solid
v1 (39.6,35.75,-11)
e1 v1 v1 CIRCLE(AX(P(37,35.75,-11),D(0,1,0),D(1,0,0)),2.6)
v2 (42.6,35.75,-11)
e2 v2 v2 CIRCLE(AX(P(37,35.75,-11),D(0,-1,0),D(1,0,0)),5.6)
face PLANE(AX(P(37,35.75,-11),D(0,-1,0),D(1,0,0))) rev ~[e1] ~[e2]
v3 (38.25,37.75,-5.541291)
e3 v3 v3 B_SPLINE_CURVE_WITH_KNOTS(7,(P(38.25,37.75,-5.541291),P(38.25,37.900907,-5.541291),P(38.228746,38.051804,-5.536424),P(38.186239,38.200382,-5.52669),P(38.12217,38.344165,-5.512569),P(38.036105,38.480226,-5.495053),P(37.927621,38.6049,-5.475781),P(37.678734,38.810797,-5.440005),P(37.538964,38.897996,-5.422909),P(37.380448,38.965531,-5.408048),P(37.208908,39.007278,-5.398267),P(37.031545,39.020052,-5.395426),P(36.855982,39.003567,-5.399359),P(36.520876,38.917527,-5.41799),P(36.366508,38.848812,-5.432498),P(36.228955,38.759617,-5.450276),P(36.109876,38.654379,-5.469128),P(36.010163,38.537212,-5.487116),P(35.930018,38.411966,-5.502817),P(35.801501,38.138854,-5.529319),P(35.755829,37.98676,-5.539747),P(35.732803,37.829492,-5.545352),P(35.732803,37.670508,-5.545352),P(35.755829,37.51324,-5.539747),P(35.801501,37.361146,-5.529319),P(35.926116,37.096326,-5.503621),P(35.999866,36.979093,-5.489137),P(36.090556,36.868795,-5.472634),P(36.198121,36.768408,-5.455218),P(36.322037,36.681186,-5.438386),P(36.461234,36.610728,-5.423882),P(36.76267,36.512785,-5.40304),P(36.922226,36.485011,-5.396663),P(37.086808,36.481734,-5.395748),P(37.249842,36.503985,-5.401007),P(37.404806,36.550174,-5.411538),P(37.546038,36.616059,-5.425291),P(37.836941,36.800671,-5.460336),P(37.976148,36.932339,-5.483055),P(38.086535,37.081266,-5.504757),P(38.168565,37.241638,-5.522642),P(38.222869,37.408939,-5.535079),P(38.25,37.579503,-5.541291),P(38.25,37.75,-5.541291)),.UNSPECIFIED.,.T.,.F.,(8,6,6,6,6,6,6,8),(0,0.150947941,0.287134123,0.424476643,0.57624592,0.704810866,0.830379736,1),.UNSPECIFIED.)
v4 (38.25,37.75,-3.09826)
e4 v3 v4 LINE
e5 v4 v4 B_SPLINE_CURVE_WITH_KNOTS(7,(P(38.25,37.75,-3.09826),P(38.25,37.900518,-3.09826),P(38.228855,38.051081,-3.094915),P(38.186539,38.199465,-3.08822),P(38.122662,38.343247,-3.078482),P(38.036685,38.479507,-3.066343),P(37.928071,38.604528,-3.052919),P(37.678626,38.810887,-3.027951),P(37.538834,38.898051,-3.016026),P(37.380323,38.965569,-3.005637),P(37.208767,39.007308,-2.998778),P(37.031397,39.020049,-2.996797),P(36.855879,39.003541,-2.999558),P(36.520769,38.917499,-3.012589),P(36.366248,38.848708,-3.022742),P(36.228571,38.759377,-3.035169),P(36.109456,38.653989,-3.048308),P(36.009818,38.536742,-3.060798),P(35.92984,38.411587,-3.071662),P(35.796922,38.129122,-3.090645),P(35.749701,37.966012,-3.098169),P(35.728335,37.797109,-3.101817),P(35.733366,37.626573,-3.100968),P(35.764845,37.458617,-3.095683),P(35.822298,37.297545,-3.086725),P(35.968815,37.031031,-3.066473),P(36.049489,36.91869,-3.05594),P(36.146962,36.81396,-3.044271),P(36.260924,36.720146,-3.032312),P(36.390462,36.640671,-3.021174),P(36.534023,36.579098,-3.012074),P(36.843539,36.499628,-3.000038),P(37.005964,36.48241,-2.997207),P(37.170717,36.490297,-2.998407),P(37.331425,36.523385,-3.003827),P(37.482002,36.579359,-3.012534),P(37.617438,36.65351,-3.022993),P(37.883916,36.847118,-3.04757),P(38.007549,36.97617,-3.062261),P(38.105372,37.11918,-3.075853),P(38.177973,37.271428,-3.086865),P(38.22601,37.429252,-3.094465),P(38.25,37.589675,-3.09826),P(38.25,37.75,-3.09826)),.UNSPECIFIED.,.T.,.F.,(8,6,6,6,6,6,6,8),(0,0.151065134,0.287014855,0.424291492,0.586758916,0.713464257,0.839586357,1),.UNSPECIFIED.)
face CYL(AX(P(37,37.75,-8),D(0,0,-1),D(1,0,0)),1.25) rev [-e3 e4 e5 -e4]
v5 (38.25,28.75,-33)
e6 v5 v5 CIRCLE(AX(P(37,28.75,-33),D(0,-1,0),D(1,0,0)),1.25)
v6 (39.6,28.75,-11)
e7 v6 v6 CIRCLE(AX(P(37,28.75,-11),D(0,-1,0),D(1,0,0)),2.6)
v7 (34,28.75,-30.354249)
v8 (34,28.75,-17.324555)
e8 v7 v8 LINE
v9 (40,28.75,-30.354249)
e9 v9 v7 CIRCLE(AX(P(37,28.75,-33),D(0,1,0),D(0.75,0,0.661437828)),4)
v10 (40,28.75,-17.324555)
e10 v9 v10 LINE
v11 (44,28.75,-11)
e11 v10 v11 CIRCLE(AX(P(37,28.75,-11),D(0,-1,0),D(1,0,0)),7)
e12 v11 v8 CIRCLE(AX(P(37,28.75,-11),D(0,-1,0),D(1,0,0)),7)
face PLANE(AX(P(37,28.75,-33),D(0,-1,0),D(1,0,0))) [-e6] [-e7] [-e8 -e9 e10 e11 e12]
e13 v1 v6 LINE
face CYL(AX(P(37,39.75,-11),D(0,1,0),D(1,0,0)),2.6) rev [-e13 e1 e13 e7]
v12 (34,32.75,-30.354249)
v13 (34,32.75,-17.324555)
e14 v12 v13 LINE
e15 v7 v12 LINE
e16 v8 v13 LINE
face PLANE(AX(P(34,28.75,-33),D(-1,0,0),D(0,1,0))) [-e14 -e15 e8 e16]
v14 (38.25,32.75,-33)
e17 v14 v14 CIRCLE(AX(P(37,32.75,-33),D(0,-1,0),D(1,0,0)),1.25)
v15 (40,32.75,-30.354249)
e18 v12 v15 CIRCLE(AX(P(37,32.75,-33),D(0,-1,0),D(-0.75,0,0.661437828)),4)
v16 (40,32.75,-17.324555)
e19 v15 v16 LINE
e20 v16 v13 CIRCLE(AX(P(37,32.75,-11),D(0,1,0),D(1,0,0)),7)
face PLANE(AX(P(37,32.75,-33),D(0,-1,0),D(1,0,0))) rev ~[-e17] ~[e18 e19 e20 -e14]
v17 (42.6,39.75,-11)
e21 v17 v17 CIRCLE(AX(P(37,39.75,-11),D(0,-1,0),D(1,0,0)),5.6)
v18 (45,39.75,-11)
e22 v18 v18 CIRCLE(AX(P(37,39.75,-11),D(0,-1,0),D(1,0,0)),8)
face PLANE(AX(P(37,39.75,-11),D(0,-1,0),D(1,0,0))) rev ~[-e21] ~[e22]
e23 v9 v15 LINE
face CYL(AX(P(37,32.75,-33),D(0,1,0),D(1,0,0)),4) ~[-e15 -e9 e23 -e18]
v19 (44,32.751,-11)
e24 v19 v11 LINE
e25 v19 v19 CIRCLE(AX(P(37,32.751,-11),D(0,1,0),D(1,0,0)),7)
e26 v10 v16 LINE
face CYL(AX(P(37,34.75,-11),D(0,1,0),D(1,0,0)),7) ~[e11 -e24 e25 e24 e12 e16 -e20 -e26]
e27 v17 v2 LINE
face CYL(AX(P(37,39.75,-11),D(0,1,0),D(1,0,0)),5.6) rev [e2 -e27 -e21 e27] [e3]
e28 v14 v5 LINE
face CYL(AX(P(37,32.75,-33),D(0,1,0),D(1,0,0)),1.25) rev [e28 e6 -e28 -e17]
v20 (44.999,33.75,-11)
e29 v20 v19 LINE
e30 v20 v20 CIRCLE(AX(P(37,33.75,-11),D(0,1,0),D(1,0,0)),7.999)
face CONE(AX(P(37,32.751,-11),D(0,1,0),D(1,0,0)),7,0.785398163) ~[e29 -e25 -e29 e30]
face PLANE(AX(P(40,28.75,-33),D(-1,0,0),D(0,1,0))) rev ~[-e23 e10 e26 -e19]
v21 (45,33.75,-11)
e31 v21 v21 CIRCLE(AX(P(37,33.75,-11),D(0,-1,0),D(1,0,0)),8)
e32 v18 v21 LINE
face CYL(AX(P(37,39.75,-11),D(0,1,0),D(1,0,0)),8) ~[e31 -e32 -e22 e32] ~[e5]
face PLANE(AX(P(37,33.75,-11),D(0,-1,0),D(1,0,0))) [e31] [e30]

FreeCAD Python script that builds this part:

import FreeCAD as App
import Part
import Sketcher
from FreeCAD import Vector


def edges_at(feature, points):
    """Names of the edges that pass closest to the given points."""
    edges = feature.Shape.Edges
    near = lambda p: min(range(len(edges)), key=lambda i: edges[i].distToShape(Part.Vertex(*p))[0])
    return sorted({f"Edge{near(p) + 1}" for p in points})

doc = App.newDocument("Part")
body = doc.addObject("PartDesign::Body", "Body")

# Sketch on XY plane
sketch1 = body.newObject("Sketcher::SketchObject", "Sketch")
sketch1.AttachmentSupport = (doc.getObject("XY_Plane"), [""])
sketch1.MapMode = "FlatFace"
sketch1.addGeometry(Part.Circle(Vector(0, 0, 0), Vector(0, 0, 1), 1.25), False)
sketch1.addConstraint(Sketcher.Constraint("Coincident", 0, 3, -1, 1))
sketch1.addConstraint(Sketcher.Constraint("Diameter", 0, 2.5))
pad1 = body.newObject("PartDesign::Pad", "Pad")
pad1.Profile = sketch1
pad1.Length = 4
body2 = doc.addObject("PartDesign::Body", "Body001")
doc.recompute()

body.Placement = App.Placement(Vector(0, 0, 0), App.Rotation(Vector(1, 0, 0), 90))
boolean = body2.newObject("PartDesign::Boolean", "Boolean")
boolean.Type = "Fuse"
boolean.addObjects([body])
body3 = doc.addObject("PartDesign::Body", "Body002")
doc.recompute()

body2.Placement = App.Placement(Vector(37, 32.75, -33), App.Rotation(Vector(0, 0, 1), 0))
boolean2 = body3.newObject("PartDesign::Boolean", "Boolean001")
boolean2.Type = "Fuse"
boolean2.addObjects([body2])
body4 = doc.addObject("PartDesign::Body", "Body003")

# Sketch on XY plane
sketch2 = body4.newObject("Sketcher::SketchObject", "Sketch001")
sketch2.AttachmentSupport = (doc.getObject("XY_Plane003"), [""])
sketch2.MapMode = "FlatFace"
sketch2.AttachmentOffset = App.Placement(Vector(0, 0, -8), App.Rotation())
sketch2.addGeometry(Part.Circle(Vector(37, 37.75, 0), Vector(0, 0, 1), 1.25), False)
sketch2.addConstraint(Sketcher.Constraint("Diameter", 0, 2.5))
sketch2.addConstraint(Sketcher.Constraint("DistanceX", -1, 1, 0, 3, 37.0))
sketch2.addConstraint(Sketcher.Constraint("DistanceY", -1, 1, 0, 3, 37.75))
pad2 = body4.newObject("PartDesign::Pad", "Pad001")
pad2.Profile = sketch2
pad2.Length = 7
body5 = doc.addObject("PartDesign::Body", "Body004")

# Sketch on XY plane
sketch3 = body5.newObject("Sketcher::SketchObject", "Sketch002")
sketch3.AttachmentSupport = (doc.getObject("XY_Plane004"), [""])
sketch3.MapMode = "FlatFace"
sketch3.addGeometry(Part.Circle(Vector(0, 0, 0), Vector(0, 0, 1), 2.6), False)
sketch3.addConstraint(Sketcher.Constraint("Coincident", 0, 3, -1, 1))
sketch3.addConstraint(Sketcher.Constraint("Diameter", 0, 5.2))
pad3 = body5.newObject("PartDesign::Pad", "Pad002")
pad3.Profile = sketch3
pad3.Length = 11
body6 = doc.addObject("PartDesign::Body", "Body005")
doc.recompute()

body5.Placement = App.Placement(Vector(0, 0, 0), App.Rotation(Vector(1, 0, 0), 90))
boolean3 = body6.newObject("PartDesign::Boolean", "Boolean002")
boolean3.Type = "Fuse"
boolean3.addObjects([body5])
body7 = doc.addObject("PartDesign::Body", "Body006")
doc.recompute()

body6.Placement = App.Placement(Vector(37, 39.75, -11), App.Rotation(Vector(0, 0, 1), 0))
boolean4 = body7.newObject("PartDesign::Boolean", "Boolean003")
boolean4.Type = "Fuse"
boolean4.addObjects([body6])
body8 = doc.addObject("PartDesign::Body", "Body007")

# Sketch on XY plane
sketch4 = body8.newObject("Sketcher::SketchObject", "Sketch003")
sketch4.AttachmentSupport = (doc.getObject("XY_Plane007"), [""])
sketch4.MapMode = "FlatFace"
sketch4.addGeometry(Part.Circle(Vector(0, 0, 0), Vector(0, 0, 1), 5.6), False)
sketch4.addConstraint(Sketcher.Constraint("Coincident", 0, 3, -1, 1))
sketch4.addConstraint(Sketcher.Constraint("Diameter", 0, 11.2))
pad4 = body8.newObject("PartDesign::Pad", "Pad003")
pad4.Profile = sketch4
pad4.Length = 4
body9 = doc.addObject("PartDesign::Body", "Body008")
doc.recompute()

body8.Placement = App.Placement(Vector(0, 0, 0), App.Rotation(Vector(1, 0, 0), 90))
boolean5 = body9.newObject("PartDesign::Boolean", "Boolean004")
boolean5.Type = "Fuse"
boolean5.addObjects([body8])
body10 = doc.addObject("PartDesign::Body", "Body009")
body10.AllowCompound = True
doc.recompute()

body9.Placement = App.Placement(Vector(37, 39.75, -11), App.Rotation(Vector(0, 0, 1), 0))
boolean6 = body10.newObject("PartDesign::Boolean", "Boolean005")
boolean6.Type = "Fuse"
boolean6.addObjects([body9])
doc.recompute()

boolean7 = body10.newObject("PartDesign::Boolean", "Boolean006")
boolean7.Type = "Fuse"
boolean7.addObjects([body3])
doc.recompute()

boolean8 = body10.newObject("PartDesign::Boolean", "Boolean007")
boolean8.Type = "Fuse"
boolean8.addObjects([body4])
doc.recompute()

boolean9 = body10.newObject("PartDesign::Boolean", "Boolean008")
boolean9.Type = "Fuse"
boolean9.addObjects([body7])
body11 = doc.addObject("PartDesign::Body", "Body010")

# Sketch on XY plane
sketch5 = body11.newObject("Sketcher::SketchObject", "Sketch004")
sketch5.AttachmentSupport = (doc.getObject("XY_Plane010"), [""])
sketch5.MapMode = "FlatFace"
sketch5.addGeometry(Part.Circle(Vector(0, 0, 0), Vector(0, 0, 1), 8), False)
sketch5.addConstraint(Sketcher.Constraint("Coincident", 0, 3, -1, 1))
sketch5.addConstraint(Sketcher.Constraint("Diameter", 0, 16.0))
pad5 = body11.newObject("PartDesign::Pad", "Pad004")
pad5.Profile = sketch5
pad5.Length = 6
body12 = doc.addObject("PartDesign::Body", "Body011")
doc.recompute()

body11.Placement = App.Placement(Vector(0, 0, 0), App.Rotation(Vector(1, 0, 0), 90))
boolean10 = body12.newObject("PartDesign::Boolean", "Boolean009")
boolean10.Type = "Fuse"
boolean10.addObjects([body11])
body13 = doc.addObject("PartDesign::Body", "Body012")
doc.recompute()

body12.Placement = App.Placement(Vector(37, 39.75, -11), App.Rotation(Vector(0, 0, 1), 0))
boolean11 = body13.newObject("PartDesign::Boolean", "Boolean010")
boolean11.Type = "Fuse"
boolean11.addObjects([body12])
body14 = doc.addObject("PartDesign::Body", "Body013")

# Sketch on XY plane
sketch6 = body14.newObject("Sketcher::SketchObject", "Sketch005")
sketch6.AttachmentSupport = (doc.getObject("XY_Plane013"), [""])
sketch6.MapMode = "FlatFace"
sketch6.addGeometry(Part.Circle(Vector(0, 0, 0), Vector(0, 0, 1), 7), False)
sketch6.addConstraint(Sketcher.Constraint("Coincident", 0, 3, -1, 1))
sketch6.addConstraint(Sketcher.Constraint("Diameter", 0, 14.0))
pad6 = body14.newObject("PartDesign::Pad", "Pad005")
pad6.Profile = sketch6
pad6.Length = 6
body15 = doc.addObject("PartDesign::Body", "Body014")
doc.recompute()

body14.Placement = App.Placement(Vector(0, 0, 0), App.Rotation(Vector(1, 0, 0), 90))
boolean12 = body15.newObject("PartDesign::Boolean", "Boolean011")
boolean12.Type = "Fuse"
boolean12.addObjects([body14])
body16 = doc.addObject("PartDesign::Body", "Body015")
doc.recompute()

body15.Placement = App.Placement(Vector(37, 39.75, -11), App.Rotation(Vector(0, 0, 1), 0))
boolean13 = body16.newObject("PartDesign::Boolean", "Boolean012")
boolean13.Type = "Fuse"
boolean13.addObjects([body15])
body17 = doc.addObject("PartDesign::Body", "Body016")

# Sketch on XY plane
sketch7 = body17.newObject("Sketcher::SketchObject", "Sketch006")
sketch7.AttachmentSupport = (doc.getObject("XY_Plane016"), [""])
sketch7.MapMode = "FlatFace"
sketch7.addGeometry(Part.Circle(Vector(0, 0, 0), Vector(0, 0, 1), 4), False)
sketch7.addConstraint(Sketcher.Constraint("Coincident", 0, 3, -1, 1))
sketch7.addConstraint(Sketcher.Constraint("Diameter", 0, 8.0))
pad7 = body17.newObject("PartDesign::Pad", "Pad006")
pad7.Profile = sketch7
pad7.Length = 4
body18 = doc.addObject("PartDesign::Body", "Body017")
doc.recompute()

body17.Placement = App.Placement(Vector(0, 0, 0), App.Rotation(Vector(1, 0, 0), 90))
boolean14 = body18.newObject("PartDesign::Boolean", "Boolean013")
boolean14.Type = "Fuse"
boolean14.addObjects([body17])
body19 = doc.addObject("PartDesign::Body", "Body018")
doc.recompute()

body18.Placement = App.Placement(Vector(37, 37.75, -33), App.Rotation(Vector(0, 0, 1), 0))
boolean15 = body19.newObject("PartDesign::Boolean", "Boolean014")
boolean15.Type = "Fuse"
boolean15.addObjects([body18])
body20 = doc.addObject("PartDesign::Body", "Body019")

# Sketch on XY plane
sketch8 = body20.newObject("Sketcher::SketchObject", "Sketch007")
sketch8.AttachmentSupport = (doc.getObject("XY_Plane019"), [""])
sketch8.MapMode = "FlatFace"
sketch8.AttachmentOffset = App.Placement(Vector(0, 0, -33), App.Rotation())
sketch8.addGeometry(Part.LineSegment(Vector(34, 37.75, 0), Vector(34, 33.75, 0)), False)
sketch8.addGeometry(Part.LineSegment(Vector(34, 33.75, 0), Vector(40, 33.75, 0)), False)
sketch8.addGeometry(Part.LineSegment(Vector(40, 33.75, 0), Vector(40, 37.75, 0)), False)
sketch8.addGeometry(Part.LineSegment(Vector(40, 37.75, 0), Vector(34, 37.75, 0)), False)
sketch8.addConstraint(Sketcher.Constraint("Coincident", 0, 2, 1, 1))
sketch8.addConstraint(Sketcher.Constraint("Coincident", 1, 2, 2, 1))
sketch8.addConstraint(Sketcher.Constraint("Coincident", 2, 2, 3, 1))
sketch8.addConstraint(Sketcher.Constraint("Coincident", 3, 2, 0, 1))
sketch8.addConstraint(Sketcher.Constraint("Vertical", 0))
sketch8.addConstraint(Sketcher.Constraint("Horizontal", 1))
sketch8.addConstraint(Sketcher.Constraint("Vertical", 2))
sketch8.addConstraint(Sketcher.Constraint("Horizontal", 3))
sketch8.addConstraint(Sketcher.Constraint("DistanceX", 1, 1, 1, 2, 6.0))
sketch8.addConstraint(Sketcher.Constraint("DistanceY", 0, 2, 0, 1, 4.0))
sketch8.addConstraint(Sketcher.Constraint("DistanceX", -1, 1, 0, 2, 34.0))
sketch8.addConstraint(Sketcher.Constraint("DistanceY", -1, 1, 0, 2, 33.75))
pad8 = body20.newObject("PartDesign::Pad", "Pad007")
pad8.Profile = sketch8
pad8.Length = 22
doc.recompute()

boolean16 = body20.newObject("PartDesign::Boolean", "Boolean015")
boolean16.Type = "Fuse"
boolean16.addObjects([body16])
doc.recompute()

boolean17 = body20.newObject("PartDesign::Boolean", "Boolean016")
boolean17.Type = "Fuse"
boolean17.addObjects([body19])
body21 = doc.addObject("PartDesign::Body", "Body020")
doc.recompute()

body20.Placement = App.Placement(Vector(0, -5, 0), App.Rotation(Vector(0, 0, 1), 0))
boolean18 = body21.newObject("PartDesign::Boolean", "Boolean017")
boolean18.Type = "Fuse"
boolean18.addObjects([body20])
doc.recompute()

boolean19 = body21.newObject("PartDesign::Boolean", "Boolean018")
boolean19.Type = "Fuse"
boolean19.addObjects([body13])
doc.recompute()

boolean20 = body21.newObject("PartDesign::Boolean", "Boolean019")
boolean20.Type = "Cut"
boolean20.addObjects([body10])
doc.recompute()

chamfer = body21.newObject("PartDesign::Chamfer", "Chamfer")
chamfer.Base = (boolean20, edges_at(boolean20, [(30, 33.75, -11)]))
chamfer.Size = 0.999

doc.recompute()
